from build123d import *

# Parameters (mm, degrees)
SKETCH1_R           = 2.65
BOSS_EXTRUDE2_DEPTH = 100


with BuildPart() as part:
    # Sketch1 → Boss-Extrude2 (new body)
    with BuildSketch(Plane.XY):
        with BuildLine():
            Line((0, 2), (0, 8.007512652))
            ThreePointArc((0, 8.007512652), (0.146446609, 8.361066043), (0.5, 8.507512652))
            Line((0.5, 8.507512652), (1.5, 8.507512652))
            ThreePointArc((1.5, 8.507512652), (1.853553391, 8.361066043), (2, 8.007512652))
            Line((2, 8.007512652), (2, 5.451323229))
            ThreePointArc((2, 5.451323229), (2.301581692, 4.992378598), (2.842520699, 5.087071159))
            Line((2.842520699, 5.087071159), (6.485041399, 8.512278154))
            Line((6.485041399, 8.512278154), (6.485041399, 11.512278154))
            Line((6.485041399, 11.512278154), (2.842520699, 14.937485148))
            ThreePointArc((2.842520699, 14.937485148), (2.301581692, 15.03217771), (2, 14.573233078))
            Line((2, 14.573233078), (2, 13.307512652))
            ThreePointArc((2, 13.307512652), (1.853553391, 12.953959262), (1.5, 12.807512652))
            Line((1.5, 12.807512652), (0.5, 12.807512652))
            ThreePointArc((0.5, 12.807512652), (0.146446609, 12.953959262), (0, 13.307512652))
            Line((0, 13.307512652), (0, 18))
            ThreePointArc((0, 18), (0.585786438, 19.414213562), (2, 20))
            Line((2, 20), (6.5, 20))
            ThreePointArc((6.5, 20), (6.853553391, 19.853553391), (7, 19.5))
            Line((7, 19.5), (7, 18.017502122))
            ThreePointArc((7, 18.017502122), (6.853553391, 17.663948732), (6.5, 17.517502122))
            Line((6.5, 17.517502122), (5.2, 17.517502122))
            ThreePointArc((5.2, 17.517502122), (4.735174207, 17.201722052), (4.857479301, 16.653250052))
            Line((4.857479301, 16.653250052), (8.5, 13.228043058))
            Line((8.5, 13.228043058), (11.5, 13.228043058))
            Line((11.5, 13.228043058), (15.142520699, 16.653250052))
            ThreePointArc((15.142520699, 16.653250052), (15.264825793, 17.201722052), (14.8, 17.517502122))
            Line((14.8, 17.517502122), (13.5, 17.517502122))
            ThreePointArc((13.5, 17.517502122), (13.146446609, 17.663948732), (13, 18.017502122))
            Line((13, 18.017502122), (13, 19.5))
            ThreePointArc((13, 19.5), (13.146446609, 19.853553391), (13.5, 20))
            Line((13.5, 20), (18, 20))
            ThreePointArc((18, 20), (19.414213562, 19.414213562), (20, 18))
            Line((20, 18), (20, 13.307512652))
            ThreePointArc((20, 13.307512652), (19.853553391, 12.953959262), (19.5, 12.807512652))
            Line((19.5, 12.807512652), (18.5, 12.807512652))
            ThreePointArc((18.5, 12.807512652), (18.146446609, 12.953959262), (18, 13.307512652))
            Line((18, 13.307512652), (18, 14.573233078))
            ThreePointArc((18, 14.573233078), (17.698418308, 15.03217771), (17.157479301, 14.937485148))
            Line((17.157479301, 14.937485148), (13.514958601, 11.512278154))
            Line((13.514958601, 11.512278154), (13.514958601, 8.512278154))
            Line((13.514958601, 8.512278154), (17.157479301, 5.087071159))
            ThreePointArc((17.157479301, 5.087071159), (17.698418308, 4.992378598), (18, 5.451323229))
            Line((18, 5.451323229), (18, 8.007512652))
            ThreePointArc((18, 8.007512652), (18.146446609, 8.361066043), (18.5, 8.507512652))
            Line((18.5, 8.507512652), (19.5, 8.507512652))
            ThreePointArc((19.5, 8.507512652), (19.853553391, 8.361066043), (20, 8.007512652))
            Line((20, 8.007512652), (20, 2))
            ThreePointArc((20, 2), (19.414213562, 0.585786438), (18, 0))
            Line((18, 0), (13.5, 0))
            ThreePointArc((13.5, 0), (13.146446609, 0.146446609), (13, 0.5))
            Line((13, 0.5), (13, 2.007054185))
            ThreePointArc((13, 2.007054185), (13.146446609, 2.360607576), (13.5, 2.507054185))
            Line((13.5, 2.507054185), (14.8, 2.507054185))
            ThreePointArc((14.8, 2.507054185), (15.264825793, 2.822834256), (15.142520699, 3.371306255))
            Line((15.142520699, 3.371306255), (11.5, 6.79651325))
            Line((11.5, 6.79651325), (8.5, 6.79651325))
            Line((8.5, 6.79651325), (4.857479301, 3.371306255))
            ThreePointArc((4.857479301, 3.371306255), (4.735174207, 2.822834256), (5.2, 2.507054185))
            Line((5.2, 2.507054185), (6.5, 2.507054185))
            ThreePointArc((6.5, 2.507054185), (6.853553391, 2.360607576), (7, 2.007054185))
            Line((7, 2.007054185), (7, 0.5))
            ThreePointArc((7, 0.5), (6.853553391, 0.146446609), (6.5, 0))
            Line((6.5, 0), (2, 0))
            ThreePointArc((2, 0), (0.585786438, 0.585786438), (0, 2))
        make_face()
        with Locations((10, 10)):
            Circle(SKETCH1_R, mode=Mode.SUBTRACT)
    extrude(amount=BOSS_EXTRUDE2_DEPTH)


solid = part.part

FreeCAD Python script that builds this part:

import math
import FreeCAD as App
import Part
import Sketcher
Q = App.Units.Quantity

doc = App.newDocument("Part")
params = doc.addObject("Spreadsheet::Sheet", "Params")
for row, (alias, value) in enumerate([
    ("sketch1_radius", "2 mm"),
    ("sketch1_diameter", "5.3 mm"),
    ("sketch1_radius2", "0.5 mm"),
    ("sketch1_width", "3 mm"),
    ("sketch1_length", "5 mm"),
    ("pad1_length", "100 mm"),
], start=1):
    params.set(f"A{row}", alias)
    params.set(f"B{row}", "=" + value)
    params.setAlias(f"B{row}", alias)

body = doc.addObject("PartDesign::Body", "Body")

# Sketch on XY plane
sketch1 = body.newObject("Sketcher::SketchObject", "Sketch")
sketch1.AttachmentSupport = (doc.getObject("XY_Plane"), [""])
sketch1.MapMode = "FlatFace"
sketch1.addGeometry([
    Part.LineSegment(App.Vector(0, 8.01, 0), App.Vector(0, 2, 0)),  # 0
    Part.ArcOfCircle(Part.Circle(App.Vector(2, 2, 0), App.Vector(0, 0, 1), 2), math.radians(-180), math.radians(-90)),  # 1
    Part.LineSegment(App.Vector(2, 0, 0), App.Vector(6.5, 0, 0)),  # 2
    Part.ArcOfCircle(Part.Circle(App.Vector(6.5, 0.5, 0), App.Vector(0, 0, 1), 0.5), math.radians(-90), math.radians(0)),  # 3
    Part.LineSegment(App.Vector(7, 0.5, 0), App.Vector(7, 2.01, 0)),  # 4
    Part.ArcOfCircle(Part.Circle(App.Vector(6.5, 2.01, 0), App.Vector(0, 0, 1), 0.5), math.radians(0), math.radians(90)),  # 5
    Part.LineSegment(App.Vector(6.5, 2.51, 0), App.Vector(5.2, 2.51, 0)),  # 6
    Part.ArcOfCircle(Part.Circle(App.Vector(5.2, 3.01, 0), App.Vector(0, 0, 1), 0.5), math.radians(133), math.radians(270)),  # 7
    Part.LineSegment(App.Vector(4.86, 3.37, 0), App.Vector(8.5, 6.8, 0)),  # 8
    Part.LineSegment(App.Vector(8.5, 6.8, 0), App.Vector(11.5, 6.8, 0)),  # 9
    Part.LineSegment(App.Vector(11.5, 6.8, 0), App.Vector(15.14, 3.37, 0)),  # 10
    Part.ArcOfCircle(Part.Circle(App.Vector(14.8, 3.01, 0), App.Vector(0, 0, 1), 0.5), math.radians(-90), math.radians(47)),  # 11
    Part.LineSegment(App.Vector(14.8, 2.51, 0), App.Vector(13.5, 2.51, 0)),  # 12
    Part.ArcOfCircle(Part.Circle(App.Vector(13.5, 2.01, 0), App.Vector(0, 0, 1), 0.5), math.radians(90), math.radians(180)),  # 13
    Part.LineSegment(App.Vector(13, 2.01, 0), App.Vector(13, 0.5, 0)),  # 14
    Part.ArcOfCircle(Part.Circle(App.Vector(13.5, 0.5, 0), App.Vector(0, 0, 1), 0.5), math.radians(180), math.radians(270)),  # 15
    Part.LineSegment(App.Vector(13.5, 0, 0), App.Vector(18, 0, 0)),  # 16
    Part.ArcOfCircle(Part.Circle(App.Vector(18, 2, 0), App.Vector(0, 0, 1), 2), math.radians(-90), math.radians(0)),  # 17
    Part.LineSegment(App.Vector(20, 2, 0), App.Vector(20, 8.01, 0)),  # 18
    Part.ArcOfCircle(Part.Circle(App.Vector(19.5, 8.01, 0), App.Vector(0, 0, 1), 0.5), math.radians(0), math.radians(90)),  # 19
    Part.LineSegment(App.Vector(19.5, 8.51, 0), App.Vector(18.5, 8.51, 0)),  # 20
    Part.ArcOfCircle(Part.Circle(App.Vector(18.5, 8.01, 0), App.Vector(0, 0, 1), 0.5), math.radians(90), math.radians(180)),  # 21
    Part.LineSegment(App.Vector(18, 8.01, 0), App.Vector(18, 5.45, 0)),  # 22
    Part.ArcOfCircle(Part.Circle(App.Vector(17.5, 5.45, 0), App.Vector(0, 0, 1), 0.5), math.radians(-133), math.radians(0)),  # 23
    Part.LineSegment(App.Vector(17.16, 5.09, 0), App.Vector(13.51, 8.51, 0)),  # 24
    Part.LineSegment(App.Vector(13.51, 8.51, 0), App.Vector(13.51, 11.51, 0)),  # 25
    Part.LineSegment(App.Vector(13.51, 11.51, 0), App.Vector(17.16, 14.94, 0)),  # 26
    Part.ArcOfCircle(Part.Circle(App.Vector(17.5, 14.57, 0), App.Vector(0, 0, 1), 0.5), math.radians(0), math.radians(133)),  # 27
    Part.LineSegment(App.Vector(18, 14.57, 0), App.Vector(18, 13.31, 0)),  # 28
    Part.ArcOfCircle(Part.Circle(App.Vector(18.5, 13.31, 0), App.Vector(0, 0, 1), 0.5), math.radians(180), math.radians(270)),  # 29
    Part.LineSegment(App.Vector(18.5, 12.81, 0), App.Vector(19.5, 12.81, 0)),  # 30
    Part.ArcOfCircle(Part.Circle(App.Vector(19.5, 13.31, 0), App.Vector(0, 0, 1), 0.5), math.radians(-90), math.radians(0)),  # 31
    Part.LineSegment(App.Vector(20, 13.31, 0), App.Vector(20, 18, 0)),  # 32
    Part.ArcOfCircle(Part.Circle(App.Vector(18, 18, 0), App.Vector(0, 0, 1), 2), math.radians(0), math.radians(90)),  # 33
    Part.LineSegment(App.Vector(18, 20, 0), App.Vector(13.5, 20, 0)),  # 34
    Part.ArcOfCircle(Part.Circle(App.Vector(13.5, 19.5, 0), App.Vector(0, 0, 1), 0.5), math.radians(90), math.radians(180)),  # 35
    Part.LineSegment(App.Vector(13, 19.5, 0), App.Vector(13, 18.02, 0)),  # 36
    Part.ArcOfCircle(Part.Circle(App.Vector(13.5, 18.02, 0), App.Vector(0, 0, 1), 0.5), math.radians(180), math.radians(270)),  # 37
    Part.LineSegment(App.Vector(13.5, 17.52, 0), App.Vector(14.8, 17.52, 0)),  # 38
    Part.ArcOfCircle(Part.Circle(App.Vector(14.8, 17.02, 0), App.Vector(0, 0, 1), 0.5), math.radians(-47), math.radians(90)),  # 39
    Part.LineSegment(App.Vector(15.14, 16.65, 0), App.Vector(11.5, 13.23, 0)),  # 40
    Part.LineSegment(App.Vector(11.5, 13.23, 0), App.Vector(8.5, 13.23, 0)),  # 41
    Part.LineSegment(App.Vector(8.5, 13.23, 0), App.Vector(4.86, 16.65, 0)),  # 42
    Part.ArcOfCircle(Part.Circle(App.Vector(5.2, 17.02, 0), App.Vector(0, 0, 1), 0.5), math.radians(90), math.radians(227)),  # 43
    Part.LineSegment(App.Vector(5.2, 17.52, 0), App.Vector(6.5, 17.52, 0)),  # 44
    Part.ArcOfCircle(Part.Circle(App.Vector(6.5, 18.02, 0), App.Vector(0, 0, 1), 0.5), math.radians(-90), math.radians(0)),  # 45
    Part.LineSegment(App.Vector(7, 18.02, 0), App.Vector(7, 19.5, 0)),  # 46
    Part.ArcOfCircle(Part.Circle(App.Vector(6.5, 19.5, 0), App.Vector(0, 0, 1), 0.5), math.radians(0), math.radians(90)),  # 47
    Part.LineSegment(App.Vector(6.5, 20, 0), App.Vector(2, 20, 0)),  # 48
    Part.ArcOfCircle(Part.Circle(App.Vector(2, 18, 0), App.Vector(0, 0, 1), 2), math.radians(90), math.radians(180)),  # 49
    Part.LineSegment(App.Vector(0, 18, 0), App.Vector(0, 13.31, 0)),  # 50
    Part.ArcOfCircle(Part.Circle(App.Vector(0.5, 13.31, 0), App.Vector(0, 0, 1), 0.5), math.radians(180), math.radians(270)),  # 51
    Part.LineSegment(App.Vector(0.5, 12.81, 0), App.Vector(1.5, 12.81, 0)),  # 52
    Part.ArcOfCircle(Part.Circle(App.Vector(1.5, 13.31, 0), App.Vector(0, 0, 1), 0.5), math.radians(-90), math.radians(0)),  # 53
    Part.LineSegment(App.Vector(2, 13.31, 0), App.Vector(2, 14.57, 0)),  # 54
    Part.ArcOfCircle(Part.Circle(App.Vector(2.5, 14.57, 0), App.Vector(0, 0, 1), 0.5), math.radians(47), math.radians(180)),  # 55
    Part.LineSegment(App.Vector(2.84, 14.94, 0), App.Vector(6.49, 11.51, 0)),  # 56
    Part.LineSegment(App.Vector(6.49, 11.51, 0), App.Vector(6.49, 8.51, 0)),  # 57
    Part.LineSegment(App.Vector(6.49, 8.51, 0), App.Vector(2.84, 5.09, 0)),  # 58
    Part.ArcOfCircle(Part.Circle(App.Vector(2.5, 5.45, 0), App.Vector(0, 0, 1), 0.5), math.radians(-180), math.radians(-47)),  # 59
    Part.LineSegment(App.Vector(2, 5.45, 0), App.Vector(2, 8.01, 0)),  # 60
    Part.ArcOfCircle(Part.Circle(App.Vector(1.5, 8.01, 0), App.Vector(0, 0, 1), 0.5), math.radians(0), math.radians(90)),  # 61
    Part.LineSegment(App.Vector(1.5, 8.51, 0), App.Vector(0.5, 8.51, 0)),  # 62
    Part.ArcOfCircle(Part.Circle(App.Vector(0.5, 8.01, 0), App.Vector(0, 0, 1), 0.5), math.radians(90), math.radians(180)),  # 63
    Part.Circle(App.Vector(10, 10, 0), App.Vector(0, 0, 1), 2.65),  # 64
], False)
sketch1.addConstraint([
    Sketcher.Constraint("Tangent", 0, 2, 1, 1),
    Sketcher.Constraint("Tangent", 1, 2, 2, 1),
    Sketcher.Constraint("Tangent", 2, 2, 3, 1),
    Sketcher.Constraint("Tangent", 3, 2, 4, 1),
    Sketcher.Constraint("Tangent", 4, 2, 5, 1),
    Sketcher.Constraint("Tangent", 5, 2, 6, 1),
    Sketcher.Constraint("Tangent", 6, 2, 7, 2),
    Sketcher.Constraint("Tangent", 7, 1, 8, 1),
    Sketcher.Constraint("Coincident", 8, 2, 9, 1),
    Sketcher.Constraint("Coincident", 9, 2, 10, 1),
    Sketcher.Constraint("Tangent", 10, 2, 11, 2),
    Sketcher.Constraint("Tangent", 11, 1, 12, 1),
    Sketcher.Constraint("Tangent", 12, 2, 13, 1),
    Sketcher.Constraint("Tangent", 13, 2, 14, 1),
    Sketcher.Constraint("Tangent", 14, 2, 15, 1),
    Sketcher.Constraint("Tangent", 15, 2, 16, 1),
    Sketcher.Constraint("Tangent", 16, 2, 17, 1),
    Sketcher.Constraint("Tangent", 17, 2, 18, 1),
    Sketcher.Constraint("Tangent", 18, 2, 19, 1),
    Sketcher.Constraint("Tangent", 19, 2, 20, 1),
    Sketcher.Constraint("Tangent", 20, 2, 21, 1),
    Sketcher.Constraint("Tangent", 21, 2, 22, 1),
    Sketcher.Constraint("Tangent", 22, 2, 23, 2),
    Sketcher.Constraint("Tangent", 23, 1, 24, 1),
    Sketcher.Constraint("Coincident", 24, 2, 25, 1),
    Sketcher.Constraint("Coincident", 25, 2, 26, 1),
    Sketcher.Constraint("Tangent", 26, 2, 27, 2),
    Sketcher.Constraint("Tangent", 27, 1, 28, 1),
    Sketcher.Constraint("Tangent", 28, 2, 29, 1),
    Sketcher.Constraint("Tangent", 29, 2, 30, 1),
    Sketcher.Constraint("Tangent", 30, 2, 31, 1),
    Sketcher.Constraint("Tangent", 31, 2, 32, 1),
    Sketcher.Constraint("Tangent", 32, 2, 33, 1),
    Sketcher.Constraint("Tangent", 33, 2, 34, 1),
    Sketcher.Constraint("Tangent", 34, 2, 35, 1),
    Sketcher.Constraint("Tangent", 35, 2, 36, 1),
    Sketcher.Constraint("Tangent", 36, 2, 37, 1),
    Sketcher.Constraint("Tangent", 37, 2, 38, 1),
    Sketcher.Constraint("Tangent", 38, 2, 39, 2),
    Sketcher.Constraint("Tangent", 39, 1, 40, 1),
    Sketcher.Constraint("Coincident", 40, 2, 41, 1),
    Sketcher.Constraint("Coincident", 41, 2, 42, 1),
    Sketcher.Constraint("Tangent", 42, 2, 43, 2),
    Sketcher.Constraint("Tangent", 43, 1, 44, 1),
    Sketcher.Constraint("Tangent", 44, 2, 45, 1),
    Sketcher.Constraint("Tangent", 45, 2, 46, 1),
    Sketcher.Constraint("Tangent", 46, 2, 47, 1),
    Sketcher.Constraint("Tangent", 47, 2, 48, 1),
    Sketcher.Constraint("Tangent", 48, 2, 49, 1),
    Sketcher.Constraint("Tangent", 49, 2, 50, 1),
    Sketcher.Constraint("Tangent", 50, 2, 51, 1),
    Sketcher.Constraint("Tangent", 51, 2, 52, 1),
    Sketcher.Constraint("Tangent", 52, 2, 53, 1),
    Sketcher.Constraint("Tangent", 53, 2, 54, 1),
    Sketcher.Constraint("Tangent", 54, 2, 55, 2),
    Sketcher.Constraint("Tangent", 55, 1, 56, 1),
    Sketcher.Constraint("Coincident", 56, 2, 57, 1),
    Sketcher.Constraint("Coincident", 57, 2, 58, 1),
    Sketcher.Constraint("Tangent", 58, 2, 59, 2),
    Sketcher.Constraint("Tangent", 59, 1, 60, 1),
    Sketcher.Constraint("Tangent", 60, 2, 61, 1),
    Sketcher.Constraint("Tangent", 61, 2, 62, 1),
    Sketcher.Constraint("Tangent", 62, 2, 63, 1),
    Sketcher.Constraint("Tangent", 63, 2, 0, 1),
    Sketcher.Constraint("Vertical", 0),
    Sketcher.Constraint("Horizontal", 2),
    Sketcher.Constraint("Vertical", 4),
    Sketcher.Constraint("Horizontal", 6),
    Sketcher.Constraint("Horizontal", 9),
    Sketcher.Constraint("Horizontal", 12),
    Sketcher.Constraint("Vertical", 14),
    Sketcher.Constraint("Horizontal", 16),
    Sketcher.Constraint("Vertical", 18),
    Sketcher.Constraint("Horizontal", 20),
    Sketcher.Constraint("Vertical", 22),
    Sketcher.Constraint("Vertical", 25),
    Sketcher.Constraint("Vertical", 28),
    Sketcher.Constraint("Horizontal", 30),
    Sketcher.Constraint("Vertical", 32),
    Sketcher.Constraint("Horizontal", 34),
    Sketcher.Constraint("Vertical", 36),
    Sketcher.Constraint("Horizontal", 38),
    Sketcher.Constraint("Horizontal", 41),
    Sketcher.Constraint("Horizontal", 44),
    Sketcher.Constraint("Vertical", 46),
    Sketcher.Constraint("Horizontal", 48),
    Sketcher.Constraint("Vertical", 50),
    Sketcher.Constraint("Horizontal", 52),
    Sketcher.Constraint("Vertical", 54),
    Sketcher.Constraint("Vertical", 57),
    Sketcher.Constraint("Vertical", 60),
    Sketcher.Constraint("Horizontal", 62),
    Sketcher.Constraint("Equal", 3, 5),
    Sketcher.Constraint("Equal", 5, 7),
    Sketcher.Constraint("Equal", 7, 11),
    Sketcher.Constraint("Equal", 11, 13),
    Sketcher.Constraint("Equal", 13, 15),
    Sketcher.Constraint("Equal", 1, 17),
    Sketcher.Constraint("Equal", 15, 19),
    Sketcher.Constraint("Equal", 19, 21),
    Sketcher.Constraint("Equal", 21, 23),
    Sketcher.Constraint("Equal", 23, 27),
    Sketcher.Constraint("Equal", 27, 29),
    Sketcher.Constraint("Equal", 29, 31),
    Sketcher.Constraint("Equal", 17, 33),
    Sketcher.Constraint("Equal", 31, 35),
    Sketcher.Constraint("Equal", 35, 37),
    Sketcher.Constraint("Equal", 37, 39),
    Sketcher.Constraint("Equal", 39, 43),
    Sketcher.Constraint("Equal", 43, 45),
    Sketcher.Constraint("Equal", 45, 47),
    Sketcher.Constraint("Equal", 33, 49),
    Sketcher.Constraint("Equal", 47, 51),
    Sketcher.Constraint("Equal", 51, 53),
    Sketcher.Constraint("Equal", 53, 55),
    Sketcher.Constraint("Equal", 55, 59),
    Sketcher.Constraint("Equal", 59, 61),
    Sketcher.Constraint("Equal", 61, 63),
    Sketcher.Constraint("PointOnObject", 0, 2, -2),
    Sketcher.Constraint("PointOnObject", 1, 2, -1),
    Sketcher.Constraint("PointOnObject", 15, 2, -1),
    Sketcher.Constraint("PointOnObject", 49, 2, -2),
    Sketcher.Constraint("Parallel", 10, 24),
    Sketcher.Constraint("Parallel", 8, 26),
    Sketcher.Constraint("Parallel", 26, 40),
    Sketcher.Constraint("Parallel", 24, 42),
    Sketcher.Constraint("Parallel", 42, 56),
    Sketcher.Constraint("Parallel", 40, 58),
    Sketcher.Constraint("Horizontal", 7, 3, 11, 3),
    Sketcher.Constraint("Horizontal", 39, 3, 43, 3),
    Sketcher.Constraint("Horizontal", 35, 3, 47, 3),
    Sketcher.Constraint("Horizontal", 31, 3, 51, 3),
    Sketcher.Constraint("Horizontal", 27, 3, 55, 3),
    Sketcher.Constraint("Horizontal", 23, 3, 59, 3),
    Sketcher.Constraint("Horizontal", 21, 3, 61, 3),
    Sketcher.Constraint("Horizontal", 7, 1, 10, 2),
    Sketcher.Constraint("Horizontal", 25, 2, 56, 2),
    Sketcher.Constraint("Horizontal", 24, 2, 57, 2),
    Sketcher.Constraint("Vertical", 23, 3, 27, 3),
    Sketcher.Constraint("Vertical", 19, 3, 31, 3),
    Sketcher.Constraint("Vertical", 15, 3, 35, 3),
    Sketcher.Constraint("Vertical", 11, 3, 39, 3),
    Sketcher.Constraint("Vertical", 7, 3, 43, 3),
    Sketcher.Constraint("Vertical", 5, 3, 45, 3),
    Sketcher.Constraint("Vertical", 16, 2, 21, 2),
    Sketcher.Constraint("Vertical", 9, 2, 40, 2),
    Sketcher.Constraint("Vertical", 48, 2, 53, 2),
    Sketcher.Constraint("Equal", 6, 12),
    Sketcher.Constraint("Equal", 2, 16),
    Sketcher.Constraint("Equal", 41, 25),
    Sketcher.Constraint("Equal", 10, 24),
    Sketcher.Constraint("Radius", 1, Q("2 mm")),
    Sketcher.Constraint("Diameter", 64, Q("5.3 mm")),
    Sketcher.Constraint("Radius", 3, Q("0.5 mm")),
    Sketcher.Constraint("DistanceX", 9, 1, 9, 2, Q("3 mm")),
    Sketcher.Constraint("Distance", 8, Q("5 mm")),
    Sketcher.Constraint("DistanceX", 2, 1, 2, 2, Q("4.5 mm")),
    Sketcher.Constraint("DistanceX", 6, 2, 6, 1, Q("1.3 mm")),
    Sketcher.Constraint("DistanceX", -1, 1, 17, 3, Q("18 mm")),
    Sketcher.Constraint("DistanceY", -1, 1, 33, 3, Q("18 mm")),
    Sketcher.Constraint("DistanceX", -1, 1, 64, 3, Q("10 mm")),
    Sketcher.Constraint("DistanceY", -1, 1, 64, 3, Q("10 mm")),
    Sketcher.Constraint("DistanceY", 22, 2, 22, 1, Q("2.556189 mm")),
    Sketcher.Constraint("DistanceY", 28, 2, 28, 1, Q("1.26572 mm")),
    Sketcher.Constraint("DistanceY", 0, 2, 0, 1, Q("6.007513 mm")),
    Sketcher.Constraint("DistanceY", 4, 1, 4, 2, Q("1.507054 mm")),
    Sketcher.Constraint("DistanceY", 36, 2, 36, 1, Q("1.482498 mm")),
])
sketch1.setExpression("Constraints[151]", "Params.sketch1_radius")
sketch1.setExpression("Constraints[152]", "Params.sketch1_diameter")
sketch1.setExpression("Constraints[153]", "Params.sketch1_radius2")
sketch1.setExpression("Constraints[154]", "Params.sketch1_width")
sketch1.setExpression("Constraints[155]", "Params.sketch1_length")
pad1 = body.newObject("PartDesign::Pad", "Pad")
pad1.Profile = sketch1
pad1.setExpression("Length", "Params.pad1_length")

doc.recompute()
